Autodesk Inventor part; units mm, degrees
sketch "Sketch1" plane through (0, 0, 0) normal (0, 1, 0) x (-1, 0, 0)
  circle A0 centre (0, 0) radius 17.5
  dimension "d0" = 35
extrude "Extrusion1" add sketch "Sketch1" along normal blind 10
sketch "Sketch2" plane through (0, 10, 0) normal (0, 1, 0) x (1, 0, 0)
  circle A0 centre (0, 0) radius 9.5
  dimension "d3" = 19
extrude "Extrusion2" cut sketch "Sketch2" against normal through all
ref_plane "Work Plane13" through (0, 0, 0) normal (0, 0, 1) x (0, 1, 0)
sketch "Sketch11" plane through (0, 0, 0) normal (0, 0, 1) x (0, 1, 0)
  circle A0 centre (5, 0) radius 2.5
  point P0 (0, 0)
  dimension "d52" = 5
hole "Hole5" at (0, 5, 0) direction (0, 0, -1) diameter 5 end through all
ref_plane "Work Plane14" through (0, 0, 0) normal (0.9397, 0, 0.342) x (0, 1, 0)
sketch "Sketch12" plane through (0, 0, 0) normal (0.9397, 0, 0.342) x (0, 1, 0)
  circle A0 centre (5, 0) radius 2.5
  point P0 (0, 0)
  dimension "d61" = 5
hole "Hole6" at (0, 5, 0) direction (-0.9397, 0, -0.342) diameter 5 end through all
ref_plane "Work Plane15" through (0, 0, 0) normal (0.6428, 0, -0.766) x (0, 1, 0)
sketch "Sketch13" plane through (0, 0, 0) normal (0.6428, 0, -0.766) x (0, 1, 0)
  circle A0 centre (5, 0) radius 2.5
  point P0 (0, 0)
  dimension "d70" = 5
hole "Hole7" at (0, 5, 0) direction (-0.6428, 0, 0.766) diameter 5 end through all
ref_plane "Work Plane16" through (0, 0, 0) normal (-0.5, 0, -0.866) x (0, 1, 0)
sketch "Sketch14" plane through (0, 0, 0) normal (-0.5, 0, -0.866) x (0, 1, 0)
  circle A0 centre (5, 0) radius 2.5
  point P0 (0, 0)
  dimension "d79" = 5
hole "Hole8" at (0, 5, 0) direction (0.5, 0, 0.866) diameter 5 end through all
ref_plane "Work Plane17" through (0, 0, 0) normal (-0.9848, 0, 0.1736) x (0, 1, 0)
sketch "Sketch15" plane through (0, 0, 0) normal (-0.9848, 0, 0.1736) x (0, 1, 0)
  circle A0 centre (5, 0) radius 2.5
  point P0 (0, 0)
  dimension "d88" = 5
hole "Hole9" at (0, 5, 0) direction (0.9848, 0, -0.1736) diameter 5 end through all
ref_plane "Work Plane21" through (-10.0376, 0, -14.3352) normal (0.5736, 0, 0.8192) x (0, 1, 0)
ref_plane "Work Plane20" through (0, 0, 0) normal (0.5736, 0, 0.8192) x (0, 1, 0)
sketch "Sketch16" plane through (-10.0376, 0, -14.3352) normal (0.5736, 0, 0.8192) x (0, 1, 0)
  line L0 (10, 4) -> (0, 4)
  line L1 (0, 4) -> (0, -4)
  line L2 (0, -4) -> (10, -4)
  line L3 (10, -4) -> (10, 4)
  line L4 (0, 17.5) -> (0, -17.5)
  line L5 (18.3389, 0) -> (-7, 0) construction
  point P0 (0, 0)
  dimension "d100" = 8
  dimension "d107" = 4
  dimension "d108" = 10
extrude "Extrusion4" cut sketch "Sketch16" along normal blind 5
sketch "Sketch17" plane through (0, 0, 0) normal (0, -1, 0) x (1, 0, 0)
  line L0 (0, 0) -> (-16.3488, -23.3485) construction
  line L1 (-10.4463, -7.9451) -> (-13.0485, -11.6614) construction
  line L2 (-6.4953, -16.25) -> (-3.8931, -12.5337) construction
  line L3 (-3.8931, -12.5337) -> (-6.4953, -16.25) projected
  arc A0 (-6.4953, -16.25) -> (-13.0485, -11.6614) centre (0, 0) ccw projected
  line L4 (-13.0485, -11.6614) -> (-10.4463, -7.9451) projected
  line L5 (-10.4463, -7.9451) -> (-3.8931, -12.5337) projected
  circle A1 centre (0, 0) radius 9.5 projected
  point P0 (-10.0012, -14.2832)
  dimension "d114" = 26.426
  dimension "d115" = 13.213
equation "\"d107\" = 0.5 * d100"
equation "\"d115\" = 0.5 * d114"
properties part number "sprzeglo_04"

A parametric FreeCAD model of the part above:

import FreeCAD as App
import Part
import Sketcher
from FreeCAD import Vector


def add_polygon(sketch, points):
    """Adds a closed chain of lines whose ends are joined by coincident constraints."""
    first, n = sketch.GeometryCount, len(points)
    for a, b in zip(points, points[1:] + points[:1]):
        sketch.addGeometry(Part.LineSegment(App.Vector(*a, 0), App.Vector(*b, 0)), False)
    for i in range(n):
        sketch.addConstraint(Sketcher.Constraint("Coincident", first + i, 2, first + (i + 1) % n, 1))

doc = App.newDocument("Part")
body = doc.addObject("PartDesign::Body", "Body")

sketch1 = body.newObject("Sketcher::SketchObject", "Sketch")
sketch1.AttachmentSupport = (doc.getObject("XZ_Plane"), [""])
sketch1.MapMode = "FlatFace"
sketch1.addGeometry(Part.Circle(Vector(0, 0, 0), Vector(0, 0, 1), 17.5), False)
sketch1.addConstraint([
    Sketcher.Constraint("Coincident", 0, 3, -1, 1),
    Sketcher.Constraint("Diameter", 0, 35.0),
])
pad1 = body.newObject("PartDesign::Pad", "Pad")
pad1.Profile = sketch1
pad1.Length = 10
pad1.Reversed = True

sketch2 = body.newObject("Sketcher::SketchObject", "Sketch001")
sketch2.AttachmentSupport = (doc.getObject("XZ_Plane"), [""])
sketch2.MapMode = "FlatFace"
sketch2.AttachmentOffset = App.Placement(Vector(0, 0, -10), App.Rotation())
sketch2.addGeometry(Part.Circle(Vector(0, 0, 0), Vector(0, 0, 1), 9.5), False)
sketch2.addConstraint([
    Sketcher.Constraint("Coincident", 0, 3, -1, 1),
    Sketcher.Constraint("Diameter", 0, 19.0),
])
pocket1 = body.newObject("PartDesign::Pocket", "Pocket")
pocket1.Profile = sketch2
pocket1.Type = "ThroughAll"
pocket1.Reversed = True

sketch3 = body.newObject("Sketcher::SketchObject", "Sketch002")
sketch3.AttachmentSupport = (doc.getObject("XY_Plane"), [""])
sketch3.MapMode = "FlatFace"
sketch3.addGeometry(Part.Circle(Vector(0, 5, 0), Vector(0, 0, 1), 2.5), False)
sketch3.addConstraint([
    Sketcher.Constraint("PointOnObject", 0, 3, -2),
    Sketcher.Constraint("Diameter", 0, 5.0),
    Sketcher.Constraint("DistanceY", -1, 1, 0, 3, 5.0),
])
doc.recompute()
hole = body.newObject("PartDesign::Hole", "Hole")
hole.Profile = sketch3
hole.ThreadType = "None"
hole.Diameter = 5
hole.DepthType = "ThroughAll"

sketch4 = body.newObject("Sketcher::SketchObject", "Sketch003")
sketch4.Placement = App.Placement(Vector(0, 0, 0), App.Rotation(Vector(0.342020143, 0, -0.939692621), Vector(0, 1, 0), Vector(0.939692621, 0, 0.342020143), "ZXY"))
sketch4.addGeometry(Part.Circle(Vector(0, 5, 0), Vector(0, 0, 1), 2.5), False)
sketch4.addConstraint([
    Sketcher.Constraint("PointOnObject", 0, 3, -2),
    Sketcher.Constraint("Diameter", 0, 5.0),
    Sketcher.Constraint("DistanceY", -1, 1, 0, 3, 5.0),
])
doc.recompute()
hole2 = body.newObject("PartDesign::Hole", "Hole001")
hole2.Profile = sketch4
hole2.ThreadType = "None"
hole2.Diameter = 5
hole2.DepthType = "ThroughAll"

sketch5 = body.newObject("Sketcher::SketchObject", "Sketch004")
sketch5.Placement = App.Placement(Vector(0, 0, 0), App.Rotation(Vector(-0.766044443, 0, -0.64278761), Vector(0, 1, 0), Vector(0.64278761, 0, -0.766044443), "ZXY"))
sketch5.addGeometry(Part.Circle(Vector(0, 5, 0), Vector(0, 0, 1), 2.5), False)
sketch5.addConstraint([
    Sketcher.Constraint("PointOnObject", 0, 3, -2),
    Sketcher.Constraint("Diameter", 0, 5.0),
    Sketcher.Constraint("DistanceY", -1, 1, 0, 3, 5.0),
])
doc.recompute()
hole3 = body.newObject("PartDesign::Hole", "Hole002")
hole3.Profile = sketch5
hole3.ThreadType = "None"
hole3.Diameter = 5
hole3.DepthType = "ThroughAll"

sketch6 = body.newObject("Sketcher::SketchObject", "Sketch005")
sketch6.Placement = App.Placement(Vector(0, 0, 0), App.Rotation(Vector(-0.866025404, 0, 0.5), Vector(0, 1, 0), Vector(-0.5, 0, -0.866025404), "ZXY"))
sketch6.addGeometry(Part.Circle(Vector(0, 5, 0), Vector(0, 0, 1), 2.5), False)
sketch6.addConstraint([
    Sketcher.Constraint("PointOnObject", 0, 3, -2),
    Sketcher.Constraint("Diameter", 0, 5.0),
    Sketcher.Constraint("DistanceY", -1, 1, 0, 3, 5.0),
])
doc.recompute()
hole4 = body.newObject("PartDesign::Hole", "Hole003")
hole4.Profile = sketch6
hole4.ThreadType = "None"
hole4.Diameter = 5
hole4.DepthType = "ThroughAll"

sketch7 = body.newObject("Sketcher::SketchObject", "Sketch006")
sketch7.Placement = App.Placement(Vector(0, 0, 0), App.Rotation(Vector(0.173648178, 0, 0.984807753), Vector(0, 1, 0), Vector(-0.984807753, 0, 0.173648178), "ZXY"))
sketch7.addGeometry(Part.Circle(Vector(0, 5, 0), Vector(0, 0, 1), 2.5), False)
sketch7.addConstraint([
    Sketcher.Constraint("PointOnObject", 0, 3, -2),
    Sketcher.Constraint("Diameter", 0, 5.0),
    Sketcher.Constraint("DistanceY", -1, 1, 0, 3, 5.0),
])
doc.recompute()
hole5 = body.newObject("PartDesign::Hole", "Hole004")
hole5.Profile = sketch7
hole5.ThreadType = "None"
hole5.Diameter = 5
hole5.DepthType = "ThroughAll"

sketch8 = body.newObject("Sketcher::SketchObject", "Sketch007")
sketch8.Placement = App.Placement(Vector(-10.0376, 0, -14.3352), App.Rotation(Vector(0, 1, 0), Vector(-0.819152044, 0, 0.573576436), Vector(0.573576436, 0, 0.819152044), "ZXY"))
add_polygon(sketch8, [(10, -4), (10, 4), (0, 4), (0, -4)])
sketch8.addConstraint([
    Sketcher.Constraint("Vertical", 0),
    Sketcher.Constraint("Horizontal", 1),
    Sketcher.Constraint("Vertical", 2),
    Sketcher.Constraint("Horizontal", 3),
    Sketcher.Constraint("Symmetric", 1, 2, 2, 2, -1, 1),
    Sketcher.Constraint("DistanceX", 1, 2, 1, 1, 10.0),
    Sketcher.Constraint("DistanceY", 0, 1, 0, 2, 8.0),
])
pocket2 = body.newObject("PartDesign::Pocket", "Pocket001")
pocket2.Profile = sketch8
pocket2.Length = 5
pocket2.Reversed = True

doc.recompute()
